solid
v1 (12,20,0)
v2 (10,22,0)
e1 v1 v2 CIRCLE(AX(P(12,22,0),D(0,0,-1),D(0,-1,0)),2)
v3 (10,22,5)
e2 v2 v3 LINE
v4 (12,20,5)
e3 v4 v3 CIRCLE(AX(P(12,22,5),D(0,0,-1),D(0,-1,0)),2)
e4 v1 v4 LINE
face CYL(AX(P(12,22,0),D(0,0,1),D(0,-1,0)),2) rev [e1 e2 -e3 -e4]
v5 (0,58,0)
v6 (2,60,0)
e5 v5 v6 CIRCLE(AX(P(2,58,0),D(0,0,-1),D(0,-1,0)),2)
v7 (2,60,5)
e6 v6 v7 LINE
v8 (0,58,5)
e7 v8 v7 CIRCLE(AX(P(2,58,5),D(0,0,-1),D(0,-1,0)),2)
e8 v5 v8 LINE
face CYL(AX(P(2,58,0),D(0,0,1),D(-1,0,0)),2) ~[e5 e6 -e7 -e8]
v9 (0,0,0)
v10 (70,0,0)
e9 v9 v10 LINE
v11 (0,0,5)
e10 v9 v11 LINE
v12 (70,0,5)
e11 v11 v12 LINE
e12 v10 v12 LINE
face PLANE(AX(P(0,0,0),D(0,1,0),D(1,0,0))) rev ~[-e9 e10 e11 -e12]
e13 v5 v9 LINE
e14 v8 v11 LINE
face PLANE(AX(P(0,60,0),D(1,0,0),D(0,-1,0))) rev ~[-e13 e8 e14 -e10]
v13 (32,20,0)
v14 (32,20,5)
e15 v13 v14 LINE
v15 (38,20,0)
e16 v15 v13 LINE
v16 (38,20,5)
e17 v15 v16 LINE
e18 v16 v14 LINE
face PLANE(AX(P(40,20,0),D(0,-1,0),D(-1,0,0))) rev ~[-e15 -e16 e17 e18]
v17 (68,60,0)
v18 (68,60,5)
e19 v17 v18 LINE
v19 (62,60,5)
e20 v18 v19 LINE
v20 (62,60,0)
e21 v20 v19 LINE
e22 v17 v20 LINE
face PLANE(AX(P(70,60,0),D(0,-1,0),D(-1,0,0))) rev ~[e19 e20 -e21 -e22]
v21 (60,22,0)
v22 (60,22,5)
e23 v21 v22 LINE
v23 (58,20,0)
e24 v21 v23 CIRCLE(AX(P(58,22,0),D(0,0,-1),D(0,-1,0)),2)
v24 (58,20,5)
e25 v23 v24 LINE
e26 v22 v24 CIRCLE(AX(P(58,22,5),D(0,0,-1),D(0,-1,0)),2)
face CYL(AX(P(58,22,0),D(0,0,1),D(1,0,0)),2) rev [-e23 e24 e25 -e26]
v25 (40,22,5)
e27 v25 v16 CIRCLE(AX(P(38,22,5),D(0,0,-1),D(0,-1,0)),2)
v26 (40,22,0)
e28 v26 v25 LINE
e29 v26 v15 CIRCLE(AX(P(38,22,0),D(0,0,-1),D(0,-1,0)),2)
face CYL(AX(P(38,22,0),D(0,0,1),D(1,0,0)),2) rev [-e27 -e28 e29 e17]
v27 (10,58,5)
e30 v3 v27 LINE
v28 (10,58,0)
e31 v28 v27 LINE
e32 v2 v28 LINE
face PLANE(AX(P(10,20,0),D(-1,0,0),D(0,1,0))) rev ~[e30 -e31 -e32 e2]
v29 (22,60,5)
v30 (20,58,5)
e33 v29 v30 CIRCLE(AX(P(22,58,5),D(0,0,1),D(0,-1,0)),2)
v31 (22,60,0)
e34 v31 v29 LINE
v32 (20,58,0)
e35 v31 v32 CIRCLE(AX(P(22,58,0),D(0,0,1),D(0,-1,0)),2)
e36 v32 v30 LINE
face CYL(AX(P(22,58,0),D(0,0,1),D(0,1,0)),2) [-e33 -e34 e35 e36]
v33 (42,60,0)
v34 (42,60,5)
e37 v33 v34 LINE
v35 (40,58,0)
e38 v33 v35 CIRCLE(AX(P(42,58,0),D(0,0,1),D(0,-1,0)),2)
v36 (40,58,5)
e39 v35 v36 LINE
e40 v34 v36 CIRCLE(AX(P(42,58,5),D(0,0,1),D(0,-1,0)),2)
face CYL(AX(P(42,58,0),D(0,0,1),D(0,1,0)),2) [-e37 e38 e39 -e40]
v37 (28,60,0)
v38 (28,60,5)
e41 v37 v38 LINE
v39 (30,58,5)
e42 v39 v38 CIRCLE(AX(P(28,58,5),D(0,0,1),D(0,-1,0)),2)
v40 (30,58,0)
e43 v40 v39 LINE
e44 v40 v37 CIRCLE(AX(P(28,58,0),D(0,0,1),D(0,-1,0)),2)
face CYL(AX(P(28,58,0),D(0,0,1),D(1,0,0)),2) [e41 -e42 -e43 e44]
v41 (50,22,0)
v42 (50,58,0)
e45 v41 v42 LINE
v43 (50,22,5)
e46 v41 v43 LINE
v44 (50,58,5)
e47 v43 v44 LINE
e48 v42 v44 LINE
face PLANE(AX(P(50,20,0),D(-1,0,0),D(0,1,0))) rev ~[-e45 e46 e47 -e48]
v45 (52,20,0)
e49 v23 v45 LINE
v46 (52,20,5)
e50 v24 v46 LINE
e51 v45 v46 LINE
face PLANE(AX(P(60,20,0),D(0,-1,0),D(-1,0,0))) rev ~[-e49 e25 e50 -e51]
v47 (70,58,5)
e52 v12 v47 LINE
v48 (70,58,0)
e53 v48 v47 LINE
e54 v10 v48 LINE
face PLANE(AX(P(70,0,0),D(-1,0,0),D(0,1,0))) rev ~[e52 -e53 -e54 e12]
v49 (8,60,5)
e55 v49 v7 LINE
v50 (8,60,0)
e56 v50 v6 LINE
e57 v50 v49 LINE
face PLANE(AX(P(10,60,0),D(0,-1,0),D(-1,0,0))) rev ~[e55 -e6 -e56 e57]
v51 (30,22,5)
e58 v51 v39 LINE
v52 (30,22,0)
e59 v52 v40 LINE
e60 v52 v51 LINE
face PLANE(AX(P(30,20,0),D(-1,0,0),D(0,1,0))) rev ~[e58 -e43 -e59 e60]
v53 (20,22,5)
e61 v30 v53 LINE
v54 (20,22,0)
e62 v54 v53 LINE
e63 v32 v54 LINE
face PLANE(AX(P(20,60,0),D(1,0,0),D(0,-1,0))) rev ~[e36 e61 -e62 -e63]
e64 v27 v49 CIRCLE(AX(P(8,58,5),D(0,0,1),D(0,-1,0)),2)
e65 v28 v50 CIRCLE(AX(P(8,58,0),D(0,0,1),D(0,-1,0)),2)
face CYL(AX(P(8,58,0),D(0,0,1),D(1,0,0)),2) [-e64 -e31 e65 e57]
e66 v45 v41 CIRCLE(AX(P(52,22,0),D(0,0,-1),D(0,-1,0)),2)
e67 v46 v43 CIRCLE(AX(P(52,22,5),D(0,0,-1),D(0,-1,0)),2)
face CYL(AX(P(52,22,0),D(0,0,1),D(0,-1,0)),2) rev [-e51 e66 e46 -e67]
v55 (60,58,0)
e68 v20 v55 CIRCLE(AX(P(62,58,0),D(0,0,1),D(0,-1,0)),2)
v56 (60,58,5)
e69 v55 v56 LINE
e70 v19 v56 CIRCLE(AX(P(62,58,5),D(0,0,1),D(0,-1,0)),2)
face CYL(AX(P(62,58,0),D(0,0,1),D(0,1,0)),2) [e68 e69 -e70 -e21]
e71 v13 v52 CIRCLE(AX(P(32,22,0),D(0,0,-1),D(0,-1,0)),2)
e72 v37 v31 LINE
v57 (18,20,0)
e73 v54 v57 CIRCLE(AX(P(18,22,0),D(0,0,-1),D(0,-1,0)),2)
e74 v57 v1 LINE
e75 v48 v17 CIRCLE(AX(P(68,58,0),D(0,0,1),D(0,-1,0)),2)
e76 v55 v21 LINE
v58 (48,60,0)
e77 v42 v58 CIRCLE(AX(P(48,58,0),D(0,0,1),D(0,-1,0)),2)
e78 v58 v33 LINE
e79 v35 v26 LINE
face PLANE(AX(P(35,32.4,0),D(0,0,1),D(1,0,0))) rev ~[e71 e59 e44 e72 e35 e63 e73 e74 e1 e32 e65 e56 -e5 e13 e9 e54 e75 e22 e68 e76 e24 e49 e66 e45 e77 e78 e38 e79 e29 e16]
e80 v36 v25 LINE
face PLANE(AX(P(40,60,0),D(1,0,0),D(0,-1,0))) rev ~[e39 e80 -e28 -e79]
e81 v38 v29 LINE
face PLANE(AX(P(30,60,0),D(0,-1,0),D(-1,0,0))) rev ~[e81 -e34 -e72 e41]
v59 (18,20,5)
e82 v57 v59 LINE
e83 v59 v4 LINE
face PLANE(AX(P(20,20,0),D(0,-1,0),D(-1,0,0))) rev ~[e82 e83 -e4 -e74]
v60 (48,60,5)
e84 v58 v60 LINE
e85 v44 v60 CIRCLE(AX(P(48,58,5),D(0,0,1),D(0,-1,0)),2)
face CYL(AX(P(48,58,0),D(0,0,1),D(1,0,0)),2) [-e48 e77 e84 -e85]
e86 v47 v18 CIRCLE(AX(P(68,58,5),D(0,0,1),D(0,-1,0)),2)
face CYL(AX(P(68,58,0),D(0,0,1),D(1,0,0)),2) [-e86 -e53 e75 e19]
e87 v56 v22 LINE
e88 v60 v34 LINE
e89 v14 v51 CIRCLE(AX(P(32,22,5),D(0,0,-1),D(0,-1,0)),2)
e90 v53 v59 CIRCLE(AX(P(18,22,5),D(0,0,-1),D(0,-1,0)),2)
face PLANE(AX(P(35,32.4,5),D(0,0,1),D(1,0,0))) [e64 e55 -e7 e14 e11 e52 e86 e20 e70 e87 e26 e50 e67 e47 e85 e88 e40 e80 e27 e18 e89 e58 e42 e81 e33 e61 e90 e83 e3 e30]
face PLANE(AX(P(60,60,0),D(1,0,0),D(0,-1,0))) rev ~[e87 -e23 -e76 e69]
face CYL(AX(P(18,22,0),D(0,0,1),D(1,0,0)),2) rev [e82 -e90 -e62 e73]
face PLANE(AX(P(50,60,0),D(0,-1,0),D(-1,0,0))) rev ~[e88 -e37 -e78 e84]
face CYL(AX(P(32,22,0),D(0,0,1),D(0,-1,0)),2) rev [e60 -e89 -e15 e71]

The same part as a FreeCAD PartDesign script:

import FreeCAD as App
import Part
import Sketcher


def edges_at(feature, points):
    """Names of the edges that pass closest to the given points."""
    edges = feature.Shape.Edges
    near = lambda p: min(range(len(edges)), key=lambda i: edges[i].distToShape(Part.Vertex(*p))[0])
    return sorted({f"Edge{near(p) + 1}" for p in points})


def add_polygon(sketch, points):
    """Adds a closed chain of lines whose ends are joined by coincident constraints."""
    first, n = sketch.GeometryCount, len(points)
    for a, b in zip(points, points[1:] + points[:1]):
        sketch.addGeometry(Part.LineSegment(App.Vector(*a, 0), App.Vector(*b, 0)), False)
    for i in range(n):
        sketch.addConstraint(Sketcher.Constraint("Coincident", first + i, 2, first + (i + 1) % n, 1))

doc = App.newDocument("Part")
body = doc.addObject("PartDesign::Body", "Body")

# Sketch on XY plane
sketch1 = doc.addObject("Sketcher::SketchObject", "Sketch")
body.addObject(sketch1)
sketch1.AttachmentSupport = (doc.XY_Plane, [""])
sketch1.MapMode = "FlatFace"
add_polygon(sketch1, [(0, 60), (0, 0), (70, 0), (70, 60), (60, 60), (60, 20), (50, 20), (50, 60), (40, 60), (40, 20), (30, 20), (30, 60), (20, 60), (20, 20), (10, 20), (10, 60)])  # lines 0-15
sketch1.addConstraint(Sketcher.Constraint("Vertical", 0))
sketch1.addConstraint(Sketcher.Constraint("Horizontal", 1))
sketch1.addConstraint(Sketcher.Constraint("Vertical", 2))
sketch1.addConstraint(Sketcher.Constraint("Horizontal", 3))
sketch1.addConstraint(Sketcher.Constraint("Vertical", 4))
sketch1.addConstraint(Sketcher.Constraint("Horizontal", 5))
sketch1.addConstraint(Sketcher.Constraint("Vertical", 6))
sketch1.addConstraint(Sketcher.Constraint("Horizontal", 7))
sketch1.addConstraint(Sketcher.Constraint("Vertical", 8))
sketch1.addConstraint(Sketcher.Constraint("Horizontal", 9))
sketch1.addConstraint(Sketcher.Constraint("Vertical", 10))
sketch1.addConstraint(Sketcher.Constraint("Horizontal", 11))
sketch1.addConstraint(Sketcher.Constraint("Vertical", 12))
sketch1.addConstraint(Sketcher.Constraint("Horizontal", 13))
sketch1.addConstraint(Sketcher.Constraint("Vertical", 14))
sketch1.addConstraint(Sketcher.Constraint("Horizontal", 15))
sketch1.addConstraint(Sketcher.Constraint("Coincident", 0, 2, -1, 1))
sketch1.addConstraint(Sketcher.Constraint("Horizontal", 3, 2, 6, 2))
sketch1.addConstraint(Sketcher.Constraint("Horizontal", 5, 2, 8, 2))
sketch1.addConstraint(Sketcher.Constraint("Horizontal", 7, 2, 10, 2))
sketch1.addConstraint(Sketcher.Constraint("Horizontal", 9, 2, 12, 2))
sketch1.addConstraint(Sketcher.Constraint("Horizontal", 11, 2, 14, 2))
sketch1.addConstraint(Sketcher.Constraint("Equal", 3, 5))
sketch1.addConstraint(Sketcher.Constraint("Equal", 5, 7))
sketch1.addConstraint(Sketcher.Constraint("Equal", 7, 9))
sketch1.addConstraint(Sketcher.Constraint("Equal", 9, 11))
sketch1.addConstraint(Sketcher.Constraint("Equal", 11, 13))
sketch1.addConstraint(Sketcher.Constraint("Equal", 13, 15))
sketch1.addConstraint(Sketcher.Constraint("DistanceX", 1, 1, 1, 2, 70.0))
sketch1.addConstraint(Sketcher.Constraint("DistanceY", 0, 2, 0, 1, 60.0))
sketch1.addConstraint(Sketcher.Constraint("DistanceY", 4, 2, 4, 1, 40.0))
pad1 = doc.addObject("PartDesign::Pad", "Pad")
body.addObject(pad1)
pad1.Profile = sketch1
pad1.Length = 5
doc.recompute()

fillet = doc.addObject("PartDesign::Fillet", "Fillet")
body.addObject(fillet)
fillet.Base = (pad1, edges_at(pad1, [
    (10, 60, 2.5),
    (0, 60, 2.5),
    (20, 60, 2.5),
    (30, 60, 2.5),
    (40, 60, 2.5),
    (50, 60, 2.5),
    (60, 60, 2.5),
    (70, 60, 2.5),
    (10, 20, 2.5),
    (20, 20, 2.5),
    (30, 20, 2.5),
    (40, 20, 2.5),
    (50, 20, 2.5),
    (60, 20, 2.5),
]))
fillet.Radius = 2

doc.recompute()
